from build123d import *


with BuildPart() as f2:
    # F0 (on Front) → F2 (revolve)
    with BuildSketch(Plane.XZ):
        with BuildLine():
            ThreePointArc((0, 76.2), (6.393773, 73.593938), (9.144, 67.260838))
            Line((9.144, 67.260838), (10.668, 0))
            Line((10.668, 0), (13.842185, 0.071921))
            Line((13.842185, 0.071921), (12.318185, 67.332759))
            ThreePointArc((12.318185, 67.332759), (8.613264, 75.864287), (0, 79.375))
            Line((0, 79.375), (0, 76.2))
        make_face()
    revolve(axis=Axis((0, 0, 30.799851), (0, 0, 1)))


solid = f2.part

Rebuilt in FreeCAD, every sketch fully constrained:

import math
import FreeCAD as App
import Part
import Sketcher
Q = App.Units.Quantity

doc = App.newDocument("Part")
params = doc.addObject("Spreadsheet::Sheet", "Params")
for row, (alias, value) in enumerate([
    ("sketch1_height", "0.125 in"),
    ("revolution_angle", "360 deg"),
], start=1):
    params.set(f"A{row}", alias)
    params.set(f"B{row}", "=" + value)
    params.setAlias(f"B{row}", alias)

body = doc.addObject("PartDesign::Body", "Body")

# Sketch on XZ plane
sketch1 = body.newObject("Sketcher::SketchObject", "Sketch")
sketch1.AttachmentSupport = (doc.getObject("XZ_Plane"), [""])
sketch1.MapMode = "FlatFace"
sketch1.addGeometry([
    Part.ArcOfCircle(Part.Circle(App.Vector(0, 67.053653, 0), App.Vector(0, 0, 1), 9.146347), math.radians(1.297988), math.radians(89.999998)),  # 0
    Part.LineSegment(App.Vector(9.144, 67.260838, 0), App.Vector(10.668, 0, 0)),  # 1
    Part.LineSegment(App.Vector(10.668, 0, 0), App.Vector(13.842185, 0.071921, 0)),  # 2
    Part.LineSegment(App.Vector(13.842185, 0.071921, 0), App.Vector(12.318185, 67.332759, 0)),  # 3
    Part.ArcOfCircle(Part.Circle(App.Vector(0, 67.053653, 0), App.Vector(0, 0, 1), 12.321347), math.radians(1.297987), math.radians(90)),  # 4
    Part.LineSegment(App.Vector(0, 79.375, 0), App.Vector(0, 76.2, 0)),  # 5
], False)
sketch1.addConstraint([
    Sketcher.Constraint("Tangent", 0, 1, 1, 1),
    Sketcher.Constraint("Coincident", 1, 2, 2, 1),
    Sketcher.Constraint("Coincident", 2, 2, 3, 1),
    Sketcher.Constraint("Tangent", 3, 2, 4, 1),
    Sketcher.Constraint("Coincident", 4, 2, 5, 1),
    Sketcher.Constraint("Coincident", 5, 2, 0, 2),
    Sketcher.Constraint("Vertical", 5),
    Sketcher.Constraint("Coincident", 4, 3, 0, 3),
    Sketcher.Constraint("PointOnObject", 0, 3, -2),
    Sketcher.Constraint("PointOnObject", 1, 2, -1),
    Sketcher.Constraint("PointOnObject", 4, 2, -2),
    Sketcher.Constraint("Perpendicular", 1, 2),
    Sketcher.Constraint("Perpendicular", 2, 3),
    Sketcher.Constraint("DistanceY", -1, 1, 5, 2, Q("3 in")),
    Sketcher.Constraint("DistanceY", 5, 2, 5, 1, Q("0.125 in")),
    Sketcher.Constraint("DistanceX", -1, 1, 0, 1, Q("0.36 in")),
    Sketcher.Constraint("DistanceX", -1, 1, 1, 2, Q("0.42 in")),
])
sketch1.setExpression("Constraints[14]", "Params.sketch1_height")
revolution = body.newObject("PartDesign::Revolution", "Revolution")
revolution.Profile = sketch1
revolution.ReferenceAxis = (sketch1, ["V_Axis"])
revolution.setExpression("Angle", "Params.revolution_angle")

doc.recompute()
